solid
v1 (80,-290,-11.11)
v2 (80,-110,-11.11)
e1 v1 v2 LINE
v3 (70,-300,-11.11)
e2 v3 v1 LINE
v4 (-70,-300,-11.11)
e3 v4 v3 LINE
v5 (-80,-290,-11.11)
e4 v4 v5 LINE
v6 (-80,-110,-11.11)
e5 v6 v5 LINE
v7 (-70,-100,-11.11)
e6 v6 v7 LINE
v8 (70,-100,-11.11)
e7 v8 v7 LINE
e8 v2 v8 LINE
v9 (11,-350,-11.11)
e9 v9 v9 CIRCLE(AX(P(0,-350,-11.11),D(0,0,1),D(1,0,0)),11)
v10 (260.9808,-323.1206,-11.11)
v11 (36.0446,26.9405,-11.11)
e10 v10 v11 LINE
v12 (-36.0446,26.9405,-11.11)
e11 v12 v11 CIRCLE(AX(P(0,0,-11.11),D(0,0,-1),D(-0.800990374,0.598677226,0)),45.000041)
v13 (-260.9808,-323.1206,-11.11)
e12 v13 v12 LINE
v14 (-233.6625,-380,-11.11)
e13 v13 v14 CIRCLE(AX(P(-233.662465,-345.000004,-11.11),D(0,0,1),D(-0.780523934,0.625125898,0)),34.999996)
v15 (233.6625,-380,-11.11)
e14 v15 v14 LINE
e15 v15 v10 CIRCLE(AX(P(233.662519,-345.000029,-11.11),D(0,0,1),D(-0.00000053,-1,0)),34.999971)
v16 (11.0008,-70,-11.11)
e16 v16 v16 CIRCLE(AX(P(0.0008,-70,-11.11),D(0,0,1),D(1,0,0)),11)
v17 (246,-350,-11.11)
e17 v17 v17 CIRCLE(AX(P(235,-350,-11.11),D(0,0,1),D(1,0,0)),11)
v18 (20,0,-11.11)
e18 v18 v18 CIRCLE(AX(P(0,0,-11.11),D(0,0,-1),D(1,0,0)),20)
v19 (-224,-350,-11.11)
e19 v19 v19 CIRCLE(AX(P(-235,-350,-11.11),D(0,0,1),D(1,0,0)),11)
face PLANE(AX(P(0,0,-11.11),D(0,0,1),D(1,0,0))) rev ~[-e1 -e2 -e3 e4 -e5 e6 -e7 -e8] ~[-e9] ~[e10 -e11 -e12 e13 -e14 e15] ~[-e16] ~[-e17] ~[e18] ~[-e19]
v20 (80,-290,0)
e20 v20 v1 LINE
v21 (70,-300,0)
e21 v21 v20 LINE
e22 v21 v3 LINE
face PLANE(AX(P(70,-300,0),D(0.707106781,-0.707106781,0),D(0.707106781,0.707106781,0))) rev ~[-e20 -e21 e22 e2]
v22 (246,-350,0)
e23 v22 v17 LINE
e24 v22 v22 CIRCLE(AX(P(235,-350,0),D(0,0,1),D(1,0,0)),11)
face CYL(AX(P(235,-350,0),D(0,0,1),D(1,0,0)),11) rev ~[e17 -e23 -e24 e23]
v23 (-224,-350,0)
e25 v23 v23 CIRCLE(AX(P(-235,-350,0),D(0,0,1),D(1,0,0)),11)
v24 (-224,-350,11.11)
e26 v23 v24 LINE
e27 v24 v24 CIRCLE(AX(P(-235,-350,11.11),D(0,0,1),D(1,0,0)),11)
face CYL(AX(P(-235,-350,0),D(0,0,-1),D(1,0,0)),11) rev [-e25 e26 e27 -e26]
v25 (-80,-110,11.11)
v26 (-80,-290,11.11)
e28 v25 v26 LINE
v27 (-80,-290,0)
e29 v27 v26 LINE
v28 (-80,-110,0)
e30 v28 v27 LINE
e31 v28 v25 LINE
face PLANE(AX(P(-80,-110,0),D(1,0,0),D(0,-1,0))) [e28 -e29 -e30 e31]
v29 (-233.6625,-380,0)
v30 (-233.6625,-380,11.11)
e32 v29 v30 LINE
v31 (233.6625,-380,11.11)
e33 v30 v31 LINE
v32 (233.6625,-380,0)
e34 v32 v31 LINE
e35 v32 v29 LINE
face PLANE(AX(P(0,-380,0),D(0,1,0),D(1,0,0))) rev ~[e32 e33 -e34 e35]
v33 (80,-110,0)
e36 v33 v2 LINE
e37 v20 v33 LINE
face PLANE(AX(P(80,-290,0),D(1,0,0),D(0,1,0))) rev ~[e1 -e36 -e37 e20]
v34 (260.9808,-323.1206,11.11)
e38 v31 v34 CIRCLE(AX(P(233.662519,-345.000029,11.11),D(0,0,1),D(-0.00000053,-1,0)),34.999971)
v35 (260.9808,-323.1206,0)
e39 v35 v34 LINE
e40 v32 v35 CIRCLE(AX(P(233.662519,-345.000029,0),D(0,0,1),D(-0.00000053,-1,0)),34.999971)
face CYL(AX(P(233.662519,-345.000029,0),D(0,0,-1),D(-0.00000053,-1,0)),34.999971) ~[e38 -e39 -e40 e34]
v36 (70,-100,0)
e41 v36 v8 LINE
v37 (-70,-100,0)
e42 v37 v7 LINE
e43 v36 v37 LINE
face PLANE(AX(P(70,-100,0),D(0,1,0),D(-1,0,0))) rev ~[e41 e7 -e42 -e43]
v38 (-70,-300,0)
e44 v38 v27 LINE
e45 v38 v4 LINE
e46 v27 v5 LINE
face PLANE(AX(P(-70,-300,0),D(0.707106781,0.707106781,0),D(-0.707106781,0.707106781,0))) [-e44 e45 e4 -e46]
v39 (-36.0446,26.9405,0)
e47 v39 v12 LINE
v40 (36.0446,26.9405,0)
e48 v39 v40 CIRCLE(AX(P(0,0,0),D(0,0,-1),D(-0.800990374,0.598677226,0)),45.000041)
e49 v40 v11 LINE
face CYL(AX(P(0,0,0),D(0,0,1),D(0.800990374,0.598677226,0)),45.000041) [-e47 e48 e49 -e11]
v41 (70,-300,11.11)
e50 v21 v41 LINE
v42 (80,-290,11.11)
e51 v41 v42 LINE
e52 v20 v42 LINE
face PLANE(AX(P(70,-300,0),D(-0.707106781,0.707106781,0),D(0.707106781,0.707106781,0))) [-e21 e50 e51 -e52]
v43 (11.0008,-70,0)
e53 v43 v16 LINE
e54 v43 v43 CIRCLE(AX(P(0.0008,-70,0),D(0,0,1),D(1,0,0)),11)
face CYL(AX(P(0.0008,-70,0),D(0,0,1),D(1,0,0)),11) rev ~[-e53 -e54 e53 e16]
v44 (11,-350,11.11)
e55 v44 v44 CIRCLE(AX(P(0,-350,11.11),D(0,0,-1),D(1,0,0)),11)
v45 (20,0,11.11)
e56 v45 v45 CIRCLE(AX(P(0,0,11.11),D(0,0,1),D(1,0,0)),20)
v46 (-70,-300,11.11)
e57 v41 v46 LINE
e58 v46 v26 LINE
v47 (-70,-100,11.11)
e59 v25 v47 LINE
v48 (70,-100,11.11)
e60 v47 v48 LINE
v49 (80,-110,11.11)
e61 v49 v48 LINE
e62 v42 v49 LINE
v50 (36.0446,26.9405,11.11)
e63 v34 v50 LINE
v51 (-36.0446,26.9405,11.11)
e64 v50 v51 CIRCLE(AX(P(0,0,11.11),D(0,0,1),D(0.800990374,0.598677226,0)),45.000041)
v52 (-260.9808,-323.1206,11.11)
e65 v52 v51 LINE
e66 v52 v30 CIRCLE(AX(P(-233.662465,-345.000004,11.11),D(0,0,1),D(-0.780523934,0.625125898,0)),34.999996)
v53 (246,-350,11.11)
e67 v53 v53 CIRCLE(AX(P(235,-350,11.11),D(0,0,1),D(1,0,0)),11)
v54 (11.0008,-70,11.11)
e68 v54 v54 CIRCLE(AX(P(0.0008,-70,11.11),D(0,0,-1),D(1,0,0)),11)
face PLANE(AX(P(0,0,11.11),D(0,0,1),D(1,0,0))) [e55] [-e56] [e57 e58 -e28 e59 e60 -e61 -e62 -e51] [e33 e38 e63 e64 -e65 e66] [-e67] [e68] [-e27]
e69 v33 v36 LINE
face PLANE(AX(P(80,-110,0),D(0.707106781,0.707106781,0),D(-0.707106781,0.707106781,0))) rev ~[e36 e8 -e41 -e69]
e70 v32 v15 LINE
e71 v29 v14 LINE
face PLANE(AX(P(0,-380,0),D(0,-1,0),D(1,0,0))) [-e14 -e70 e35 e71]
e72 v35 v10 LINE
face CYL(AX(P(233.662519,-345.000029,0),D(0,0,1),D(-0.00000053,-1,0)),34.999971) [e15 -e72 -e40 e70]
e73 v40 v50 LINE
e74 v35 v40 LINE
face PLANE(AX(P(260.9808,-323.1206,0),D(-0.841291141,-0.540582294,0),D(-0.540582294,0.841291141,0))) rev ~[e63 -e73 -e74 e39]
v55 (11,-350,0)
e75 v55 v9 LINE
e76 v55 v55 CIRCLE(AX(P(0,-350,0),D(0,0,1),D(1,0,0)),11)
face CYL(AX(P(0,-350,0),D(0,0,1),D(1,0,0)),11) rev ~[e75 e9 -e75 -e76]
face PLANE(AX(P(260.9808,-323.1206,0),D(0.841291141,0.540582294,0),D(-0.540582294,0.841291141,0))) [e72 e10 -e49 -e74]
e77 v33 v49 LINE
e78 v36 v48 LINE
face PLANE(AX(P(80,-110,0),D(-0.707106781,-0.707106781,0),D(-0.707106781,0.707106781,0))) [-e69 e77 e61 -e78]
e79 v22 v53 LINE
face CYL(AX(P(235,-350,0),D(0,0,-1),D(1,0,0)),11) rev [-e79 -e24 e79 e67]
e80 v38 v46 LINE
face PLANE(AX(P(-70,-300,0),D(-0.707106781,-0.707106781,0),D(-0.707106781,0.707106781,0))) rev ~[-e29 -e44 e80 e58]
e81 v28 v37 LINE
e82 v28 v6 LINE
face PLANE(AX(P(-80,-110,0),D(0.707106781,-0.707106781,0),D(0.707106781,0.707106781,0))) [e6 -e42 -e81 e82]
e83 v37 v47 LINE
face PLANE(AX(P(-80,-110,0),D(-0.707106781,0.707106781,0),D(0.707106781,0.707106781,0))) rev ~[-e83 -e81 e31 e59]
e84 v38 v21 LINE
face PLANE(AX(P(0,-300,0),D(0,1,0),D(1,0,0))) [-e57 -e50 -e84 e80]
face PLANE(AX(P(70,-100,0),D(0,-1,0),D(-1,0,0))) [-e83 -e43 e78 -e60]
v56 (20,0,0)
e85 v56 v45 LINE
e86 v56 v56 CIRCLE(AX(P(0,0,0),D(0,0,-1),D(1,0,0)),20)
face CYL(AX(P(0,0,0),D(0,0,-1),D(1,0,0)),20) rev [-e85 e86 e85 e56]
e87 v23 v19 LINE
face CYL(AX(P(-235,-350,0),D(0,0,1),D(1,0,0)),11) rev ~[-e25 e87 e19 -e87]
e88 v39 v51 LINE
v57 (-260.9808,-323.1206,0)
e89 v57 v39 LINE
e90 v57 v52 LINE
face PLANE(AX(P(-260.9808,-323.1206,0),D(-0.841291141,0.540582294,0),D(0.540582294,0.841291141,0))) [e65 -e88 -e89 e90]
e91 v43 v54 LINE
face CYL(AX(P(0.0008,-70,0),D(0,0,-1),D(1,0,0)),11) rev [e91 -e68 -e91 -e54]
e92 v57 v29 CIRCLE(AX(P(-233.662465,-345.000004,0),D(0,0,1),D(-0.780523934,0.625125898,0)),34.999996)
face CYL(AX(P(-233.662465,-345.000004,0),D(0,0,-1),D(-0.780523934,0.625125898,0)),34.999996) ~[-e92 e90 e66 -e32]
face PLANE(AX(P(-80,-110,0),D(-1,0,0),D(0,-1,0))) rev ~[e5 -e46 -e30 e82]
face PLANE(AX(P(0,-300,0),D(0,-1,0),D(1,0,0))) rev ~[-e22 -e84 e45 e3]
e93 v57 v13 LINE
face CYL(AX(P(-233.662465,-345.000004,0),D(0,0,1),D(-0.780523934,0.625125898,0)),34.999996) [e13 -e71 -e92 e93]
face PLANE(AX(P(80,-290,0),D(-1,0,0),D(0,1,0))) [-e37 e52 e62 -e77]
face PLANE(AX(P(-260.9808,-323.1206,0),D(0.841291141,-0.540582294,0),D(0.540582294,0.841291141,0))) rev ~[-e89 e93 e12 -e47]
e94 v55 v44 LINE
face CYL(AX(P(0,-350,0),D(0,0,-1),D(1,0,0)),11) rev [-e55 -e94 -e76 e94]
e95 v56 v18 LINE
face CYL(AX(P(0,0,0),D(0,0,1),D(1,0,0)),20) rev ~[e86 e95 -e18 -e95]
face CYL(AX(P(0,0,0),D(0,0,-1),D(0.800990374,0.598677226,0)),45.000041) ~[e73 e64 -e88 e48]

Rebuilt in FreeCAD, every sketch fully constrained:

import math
import FreeCAD as App
import Part
import Sketcher


def add_polygon(sketch, points):
    """Adds a closed chain of lines whose ends are joined by coincident constraints."""
    first, n = sketch.GeometryCount, len(points)
    for a, b in zip(points, points[1:] + points[:1]):
        sketch.addGeometry(Part.LineSegment(App.Vector(*a, 0), App.Vector(*b, 0)), False)
    for i in range(n):
        sketch.addConstraint(Sketcher.Constraint("Coincident", first + i, 2, first + (i + 1) % n, 1))

doc = App.newDocument("Part")
body = doc.addObject("PartDesign::Body", "Body")

# Sketch on XY plane
sketch1 = body.newObject("Sketcher::SketchObject", "Sketch")
sketch1.AttachmentSupport = (doc.getObject("XY_Plane"), [""])
sketch1.MapMode = "FlatFace"
sketch1.addGeometry(Part.ArcOfCircle(Part.Circle(App.Vector(0, 0, 0), App.Vector(0, 0, 1), 45), math.radians(37), math.radians(143)), False)  # 0
sketch1.addGeometry(Part.LineSegment(App.Vector(-36, 27, 0), App.Vector(-261, -323, 0)), False)  # 1
sketch1.addGeometry(Part.ArcOfCircle(Part.Circle(App.Vector(-234, -345, 0), App.Vector(0, 0, 1), 35), math.radians(141), math.radians(270)), False)  # 2
sketch1.addGeometry(Part.LineSegment(App.Vector(-234, -380, 0), App.Vector(234, -380, 0)), False)  # 3
sketch1.addGeometry(Part.ArcOfCircle(Part.Circle(App.Vector(234, -345, 0), App.Vector(0, 0, 1), 35), math.radians(-90), math.radians(39)), False)  # 4
sketch1.addGeometry(Part.LineSegment(App.Vector(261, -323, 0), App.Vector(36, 27, 0)), False)  # 5
sketch1.addGeometry(Part.Circle(App.Vector(0, 0, 0), App.Vector(0, 0, 1), 20), False)  # 6
sketch1.addGeometry(Part.Circle(App.Vector(0, -350, 0), App.Vector(0, 0, 1), 11), False)  # 7
add_polygon(sketch1, [(70, -300), (-70, -300), (-80, -290), (-80, -110), (-70, -100), (70, -100), (80, -110), (80, -290)])  # lines 8-15
sketch1.addGeometry(Part.Circle(App.Vector(0, -70, 0), App.Vector(0, 0, 1), 11), False)  # 16
sketch1.addGeometry(Part.Circle(App.Vector(235, -350, 0), App.Vector(0, 0, 1), 11), False)  # 17
sketch1.addGeometry(Part.Circle(App.Vector(-235, -350, 0), App.Vector(0, 0, 1), 11), False)  # 18
sketch1.addConstraint([
    Sketcher.Constraint("Coincident", 0, 2, 1, 1),
    Sketcher.Constraint("Coincident", 1, 2, 2, 1),
    Sketcher.Constraint("Tangent", 2, 2, 3, 1),
    Sketcher.Constraint("Tangent", 3, 2, 4, 1),
    Sketcher.Constraint("Coincident", 4, 2, 5, 1),
    Sketcher.Constraint("Coincident", 5, 2, 0, 1),
    Sketcher.Constraint("Horizontal", 3),
    Sketcher.Constraint("Horizontal", 8),
    Sketcher.Constraint("Vertical", 10),
    Sketcher.Constraint("Horizontal", 12),
    Sketcher.Constraint("Vertical", 14),
    Sketcher.Constraint("Coincident", 0, 3, -1, 1),
    Sketcher.Constraint("Coincident", 6, 3, -1, 1),
    Sketcher.Constraint("Equal", 2, 4),
    Sketcher.Constraint("Equal", 7, 16),
    Sketcher.Constraint("Equal", 16, 17),
    Sketcher.Constraint("Equal", 17, 18),
    Sketcher.Constraint("Symmetric", 17, 3, 18, 3, -2),
    Sketcher.Constraint("Symmetric", 1, 2, 4, 2, -2),
    Sketcher.Constraint("Symmetric", 10, 2, 13, 2, -2),
    Sketcher.Constraint("PointOnObject", 7, 3, -2),
    Sketcher.Constraint("Perpendicular", 9, 11),
    Sketcher.Constraint("Perpendicular", 11, 13),
    Sketcher.Constraint("Perpendicular", 13, 15),
    Sketcher.Constraint("Horizontal", 7, 3, 17, 3),
    Sketcher.Constraint("Horizontal", 0, 2, 5, 2),
    Sketcher.Constraint("Horizontal", 9, 2, 14, 2),
    Sketcher.Constraint("Vertical", 8, 2, 11, 2),
    Sketcher.Constraint("Vertical", 12, 2, 15, 2),
    Sketcher.Constraint("Diameter", 6, 40.0),
    Sketcher.Constraint("Diameter", 7, 22.0),
    Sketcher.Constraint("Radius", 0, 45.0),
    Sketcher.Constraint("Radius", 2, 35.0),
    Sketcher.Constraint("DistanceY", 7, 3, -1, 1, 350.0),
    Sketcher.Constraint("DistanceY", 16, 3, -1, 1, 70.0),
    Sketcher.Constraint("DistanceX", -1, 1, 17, 3, 235.0),
    Sketcher.Constraint("DistanceX", 8, 2, -1, 1, 70.0),
    Sketcher.Constraint("DistanceY", 2, 2, 18, 3, 30.0),
    Sketcher.Constraint("DistanceY", 2, 3, 8, 2, 45.0),
    Sketcher.Constraint("DistanceX", 9, 2, 8, 2, 10.0),
    Sketcher.Constraint("DistanceY", 10, 2, 16, 3, 40.0),
    Sketcher.Constraint("DistanceX", 3, 1, 3, 2, 467.325),
    Sketcher.Constraint("DistanceX", 16, 3, 4, 2, 260.98),
    Sketcher.Constraint("DistanceX", 2, 3, 0, 2, 197.618),
    Sketcher.Constraint("Distance", 1, 416.0998),
])
pad1 = body.newObject("PartDesign::Pad", "Pad")
pad1.Profile = sketch1
pad1.Length = 22.22
pad1.Midplane = True

doc.recompute()
